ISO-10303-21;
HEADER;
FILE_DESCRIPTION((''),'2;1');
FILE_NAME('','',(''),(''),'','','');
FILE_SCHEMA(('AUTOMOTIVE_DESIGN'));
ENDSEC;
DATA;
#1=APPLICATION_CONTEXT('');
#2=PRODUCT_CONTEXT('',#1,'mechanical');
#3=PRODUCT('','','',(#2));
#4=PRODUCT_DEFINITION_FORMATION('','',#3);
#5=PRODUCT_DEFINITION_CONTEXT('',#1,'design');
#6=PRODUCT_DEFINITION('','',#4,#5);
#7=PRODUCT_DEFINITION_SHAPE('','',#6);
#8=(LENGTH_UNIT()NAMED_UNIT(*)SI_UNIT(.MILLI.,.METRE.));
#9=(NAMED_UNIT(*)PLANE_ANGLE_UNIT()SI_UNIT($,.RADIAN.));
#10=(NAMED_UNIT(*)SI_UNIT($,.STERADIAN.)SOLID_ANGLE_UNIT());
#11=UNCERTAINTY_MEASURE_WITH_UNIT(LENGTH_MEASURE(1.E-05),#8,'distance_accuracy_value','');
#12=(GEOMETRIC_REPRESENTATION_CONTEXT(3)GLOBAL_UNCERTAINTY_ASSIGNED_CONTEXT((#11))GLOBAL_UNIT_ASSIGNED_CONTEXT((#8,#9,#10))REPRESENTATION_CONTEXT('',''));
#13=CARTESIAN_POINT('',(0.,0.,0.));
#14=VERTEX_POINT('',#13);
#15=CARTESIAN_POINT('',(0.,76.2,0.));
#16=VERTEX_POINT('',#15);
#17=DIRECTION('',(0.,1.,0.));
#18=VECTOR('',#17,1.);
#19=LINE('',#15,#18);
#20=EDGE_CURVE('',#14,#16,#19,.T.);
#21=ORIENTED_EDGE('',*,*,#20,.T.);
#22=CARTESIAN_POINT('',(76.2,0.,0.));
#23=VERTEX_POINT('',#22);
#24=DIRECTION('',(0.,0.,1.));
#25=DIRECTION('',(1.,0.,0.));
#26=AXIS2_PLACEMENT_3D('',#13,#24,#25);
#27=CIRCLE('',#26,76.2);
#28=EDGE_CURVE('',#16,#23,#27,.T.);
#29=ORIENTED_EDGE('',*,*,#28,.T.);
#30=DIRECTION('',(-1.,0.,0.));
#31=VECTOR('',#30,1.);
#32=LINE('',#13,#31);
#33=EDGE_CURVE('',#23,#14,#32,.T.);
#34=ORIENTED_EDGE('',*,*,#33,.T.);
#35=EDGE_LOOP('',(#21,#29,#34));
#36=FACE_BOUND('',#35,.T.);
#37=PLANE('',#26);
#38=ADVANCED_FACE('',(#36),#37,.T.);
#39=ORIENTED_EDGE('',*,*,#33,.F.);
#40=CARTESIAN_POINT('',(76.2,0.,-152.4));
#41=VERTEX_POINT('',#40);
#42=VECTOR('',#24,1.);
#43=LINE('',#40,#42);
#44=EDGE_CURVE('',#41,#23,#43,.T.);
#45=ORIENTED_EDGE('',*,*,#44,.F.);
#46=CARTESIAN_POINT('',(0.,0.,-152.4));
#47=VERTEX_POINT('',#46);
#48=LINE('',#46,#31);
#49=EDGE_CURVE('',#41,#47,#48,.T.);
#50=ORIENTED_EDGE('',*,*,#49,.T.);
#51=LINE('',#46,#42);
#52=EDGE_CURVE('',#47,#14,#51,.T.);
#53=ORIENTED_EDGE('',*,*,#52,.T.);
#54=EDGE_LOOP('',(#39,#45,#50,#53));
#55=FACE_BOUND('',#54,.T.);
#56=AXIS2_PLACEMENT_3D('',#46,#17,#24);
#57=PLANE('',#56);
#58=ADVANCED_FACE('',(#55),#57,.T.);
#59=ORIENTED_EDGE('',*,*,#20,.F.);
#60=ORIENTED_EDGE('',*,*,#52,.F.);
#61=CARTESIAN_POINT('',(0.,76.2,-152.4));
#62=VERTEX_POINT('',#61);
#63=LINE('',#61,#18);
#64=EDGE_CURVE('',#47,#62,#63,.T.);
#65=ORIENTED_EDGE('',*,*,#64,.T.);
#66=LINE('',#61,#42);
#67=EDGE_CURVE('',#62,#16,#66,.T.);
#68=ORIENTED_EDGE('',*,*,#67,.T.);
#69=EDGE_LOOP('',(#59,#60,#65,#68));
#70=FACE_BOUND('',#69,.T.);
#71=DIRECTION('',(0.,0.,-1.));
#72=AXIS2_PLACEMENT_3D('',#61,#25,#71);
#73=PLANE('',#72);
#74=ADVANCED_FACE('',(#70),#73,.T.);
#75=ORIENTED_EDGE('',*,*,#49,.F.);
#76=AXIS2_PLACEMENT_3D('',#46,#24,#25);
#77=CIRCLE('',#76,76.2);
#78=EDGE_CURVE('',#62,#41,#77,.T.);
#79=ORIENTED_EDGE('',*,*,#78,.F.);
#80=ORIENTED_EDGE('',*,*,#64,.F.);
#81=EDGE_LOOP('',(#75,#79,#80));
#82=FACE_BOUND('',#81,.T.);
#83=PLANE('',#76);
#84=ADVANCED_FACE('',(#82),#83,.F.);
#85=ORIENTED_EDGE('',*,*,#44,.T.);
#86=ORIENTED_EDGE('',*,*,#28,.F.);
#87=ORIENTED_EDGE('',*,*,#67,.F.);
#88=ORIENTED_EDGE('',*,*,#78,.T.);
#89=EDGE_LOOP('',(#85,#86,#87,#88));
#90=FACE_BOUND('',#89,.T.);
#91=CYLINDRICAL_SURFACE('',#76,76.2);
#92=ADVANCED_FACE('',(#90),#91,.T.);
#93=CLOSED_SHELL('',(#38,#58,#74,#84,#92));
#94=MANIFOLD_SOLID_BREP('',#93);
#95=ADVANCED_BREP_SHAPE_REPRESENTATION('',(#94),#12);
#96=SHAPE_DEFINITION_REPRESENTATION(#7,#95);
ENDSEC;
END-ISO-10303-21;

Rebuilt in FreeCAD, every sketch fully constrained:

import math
import FreeCAD as App
import Part
import Sketcher
from FreeCAD import Vector
Q = App.Units.Quantity

doc = App.newDocument("Part")
body = doc.addObject("PartDesign::Body", "Body")

# Sketch on XY plane
sketch1 = body.newObject("Sketcher::SketchObject", "Sketch")
sketch1.AttachmentSupport = (doc.getObject("XY_Plane"), [""])
sketch1.MapMode = "FlatFace"
sketch1.addGeometry(Part.LineSegment(Vector(0, 0, 0), Vector(0, 76.2, 0)), False)
sketch1.addGeometry(Part.ArcOfCircle(Part.Circle(Vector(0, 0, 0), Vector(0, 0, 1), 76.2), math.radians(90), math.radians(360)), False)
sketch1.addGeometry(Part.LineSegment(Vector(76.2, 0, 0), Vector(0, 0, 0)), False)
sketch1.addConstraint(Sketcher.Constraint("Coincident", 0, 2, 1, 1))
sketch1.addConstraint(Sketcher.Constraint("Coincident", 1, 2, 2, 1))
sketch1.addConstraint(Sketcher.Constraint("Coincident", 2, 2, 0, 1))
sketch1.addConstraint(Sketcher.Constraint("Vertical", 0))
sketch1.addConstraint(Sketcher.Constraint("Horizontal", 2))
sketch1.addConstraint(Sketcher.Constraint("Coincident", 1, 3, -1, 1))
sketch1.addConstraint(Sketcher.Constraint("Coincident", 2, 2, -1, 1))
sketch1.addConstraint(Sketcher.Constraint("Radius", 1, Q("3 in")))
pad1 = body.newObject("PartDesign::Pad", "Pad")
pad1.Profile = sketch1
pad1.Length = Q("6 in")
pad1.Reversed = True

doc.recompute()
